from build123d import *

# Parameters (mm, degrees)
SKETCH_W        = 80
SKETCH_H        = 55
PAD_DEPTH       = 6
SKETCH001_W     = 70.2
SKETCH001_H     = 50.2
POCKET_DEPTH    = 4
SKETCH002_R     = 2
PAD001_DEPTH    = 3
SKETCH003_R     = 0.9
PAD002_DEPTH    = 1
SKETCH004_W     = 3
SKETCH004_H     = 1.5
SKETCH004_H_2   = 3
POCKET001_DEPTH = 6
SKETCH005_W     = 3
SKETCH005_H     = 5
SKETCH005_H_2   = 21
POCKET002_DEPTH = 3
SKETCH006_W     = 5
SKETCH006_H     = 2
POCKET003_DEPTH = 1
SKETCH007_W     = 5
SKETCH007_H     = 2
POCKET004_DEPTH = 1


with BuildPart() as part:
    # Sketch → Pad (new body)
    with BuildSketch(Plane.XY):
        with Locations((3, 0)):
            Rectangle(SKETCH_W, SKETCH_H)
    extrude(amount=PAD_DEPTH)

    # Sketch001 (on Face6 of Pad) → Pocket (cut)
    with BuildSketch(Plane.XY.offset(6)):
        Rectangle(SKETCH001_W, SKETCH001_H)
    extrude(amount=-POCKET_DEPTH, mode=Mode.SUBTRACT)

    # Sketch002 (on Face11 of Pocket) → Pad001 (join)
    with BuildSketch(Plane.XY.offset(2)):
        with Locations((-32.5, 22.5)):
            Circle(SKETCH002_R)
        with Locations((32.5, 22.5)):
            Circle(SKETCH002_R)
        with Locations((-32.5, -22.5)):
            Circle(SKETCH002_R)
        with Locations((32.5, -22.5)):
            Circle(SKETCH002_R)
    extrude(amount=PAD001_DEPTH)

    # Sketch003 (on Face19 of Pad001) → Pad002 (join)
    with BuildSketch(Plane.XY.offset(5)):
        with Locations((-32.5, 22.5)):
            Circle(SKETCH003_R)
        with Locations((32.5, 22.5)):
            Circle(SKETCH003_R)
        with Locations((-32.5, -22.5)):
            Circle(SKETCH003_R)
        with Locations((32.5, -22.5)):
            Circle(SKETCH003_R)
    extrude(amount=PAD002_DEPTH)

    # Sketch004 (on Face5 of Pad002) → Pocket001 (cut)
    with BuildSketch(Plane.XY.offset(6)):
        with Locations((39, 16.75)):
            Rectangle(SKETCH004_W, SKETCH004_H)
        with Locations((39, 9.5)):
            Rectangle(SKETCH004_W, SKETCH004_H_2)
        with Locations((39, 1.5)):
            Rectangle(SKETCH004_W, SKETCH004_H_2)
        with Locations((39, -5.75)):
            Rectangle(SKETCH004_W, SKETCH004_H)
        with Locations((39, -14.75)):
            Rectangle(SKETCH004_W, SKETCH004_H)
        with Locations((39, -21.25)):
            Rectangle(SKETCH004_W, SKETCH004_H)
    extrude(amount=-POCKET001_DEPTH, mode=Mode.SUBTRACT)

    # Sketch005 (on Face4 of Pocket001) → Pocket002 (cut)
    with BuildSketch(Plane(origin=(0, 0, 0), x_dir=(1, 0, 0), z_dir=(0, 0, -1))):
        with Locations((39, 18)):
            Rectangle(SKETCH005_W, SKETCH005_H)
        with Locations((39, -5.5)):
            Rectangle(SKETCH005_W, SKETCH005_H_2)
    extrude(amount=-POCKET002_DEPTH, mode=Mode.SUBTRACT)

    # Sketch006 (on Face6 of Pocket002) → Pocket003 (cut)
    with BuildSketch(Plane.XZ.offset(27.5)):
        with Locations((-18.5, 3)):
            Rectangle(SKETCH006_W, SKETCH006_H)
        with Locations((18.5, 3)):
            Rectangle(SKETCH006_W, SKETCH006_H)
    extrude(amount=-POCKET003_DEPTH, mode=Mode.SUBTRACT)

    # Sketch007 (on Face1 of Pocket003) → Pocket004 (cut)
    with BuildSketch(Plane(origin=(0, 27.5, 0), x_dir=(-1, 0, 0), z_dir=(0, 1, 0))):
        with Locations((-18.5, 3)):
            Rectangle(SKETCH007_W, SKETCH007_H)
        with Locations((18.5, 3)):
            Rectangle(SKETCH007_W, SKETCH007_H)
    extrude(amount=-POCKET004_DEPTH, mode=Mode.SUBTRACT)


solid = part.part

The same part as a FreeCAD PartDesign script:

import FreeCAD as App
import Part
import Sketcher

V = App.Vector

doc = App.newDocument("Part")
body = doc.addObject("PartDesign::Body", "Body")

# Sketch on XY plane
sketch1 = doc.addObject("Sketcher::SketchObject", "Sketch")
body.addObject(sketch1)
sketch1.AttachmentSupport = (doc.XY_Plane, [""])
sketch1.MapMode = "FlatFace"
sketch1.addGeometry(Part.LineSegment(V(-37, 27.5, 0), V(-37, -27.5, 0)), False)
sketch1.addGeometry(Part.LineSegment(V(-37, -27.5, 0), V(43, -27.5, 0)), False)
sketch1.addGeometry(Part.LineSegment(V(43, -27.5, 0), V(43, 27.5, 0)), False)
sketch1.addGeometry(Part.LineSegment(V(43, 27.5, 0), V(-37, 27.5, 0)), False)
sketch1.addConstraint(Sketcher.Constraint("Coincident", 0, 2, 1, 1))
sketch1.addConstraint(Sketcher.Constraint("Coincident", 1, 2, 2, 1))
sketch1.addConstraint(Sketcher.Constraint("Coincident", 2, 2, 3, 1))
sketch1.addConstraint(Sketcher.Constraint("Coincident", 3, 2, 0, 1))
sketch1.addConstraint(Sketcher.Constraint("Vertical", 0))
sketch1.addConstraint(Sketcher.Constraint("Horizontal", 1))
sketch1.addConstraint(Sketcher.Constraint("Vertical", 2))
sketch1.addConstraint(Sketcher.Constraint("Horizontal", 3))
sketch1.addConstraint(Sketcher.Constraint("DistanceX", 1, 1, 1, 2, 80.0))
sketch1.addConstraint(Sketcher.Constraint("DistanceY", 0, 2, 0, 1, 55.0))
sketch1.addConstraint(Sketcher.Constraint("DistanceX", 0, 2, -1, 1, 37.0))
sketch1.addConstraint(Sketcher.Constraint("DistanceY", 0, 2, -1, 1, 27.5))
pad1 = doc.addObject("PartDesign::Pad", "Pad")
body.addObject(pad1)
pad1.Profile = sketch1
pad1.Length = 6

# Sketch on XY plane
sketch2 = doc.addObject("Sketcher::SketchObject", "Sketch001")
body.addObject(sketch2)
sketch2.AttachmentSupport = (doc.XY_Plane, [""])
sketch2.MapMode = "FlatFace"
sketch2.AttachmentOffset = App.Placement(V(0, 0, 6), App.Rotation())
sketch2.addGeometry(Part.LineSegment(V(-35.1, 25.1, 0), V(-35.1, -25.1, 0)), False)
sketch2.addGeometry(Part.LineSegment(V(-35.1, -25.1, 0), V(35.1, -25.1, 0)), False)
sketch2.addGeometry(Part.LineSegment(V(35.1, -25.1, 0), V(35.1, 25.1, 0)), False)
sketch2.addGeometry(Part.LineSegment(V(35.1, 25.1, 0), V(-35.1, 25.1, 0)), False)
sketch2.addConstraint(Sketcher.Constraint("Coincident", 0, 2, 1, 1))
sketch2.addConstraint(Sketcher.Constraint("Coincident", 1, 2, 2, 1))
sketch2.addConstraint(Sketcher.Constraint("Coincident", 2, 2, 3, 1))
sketch2.addConstraint(Sketcher.Constraint("Coincident", 3, 2, 0, 1))
sketch2.addConstraint(Sketcher.Constraint("Vertical", 0))
sketch2.addConstraint(Sketcher.Constraint("Horizontal", 1))
sketch2.addConstraint(Sketcher.Constraint("Vertical", 2))
sketch2.addConstraint(Sketcher.Constraint("Horizontal", 3))
sketch2.addConstraint(Sketcher.Constraint("Symmetric", 0, 2, 2, 2, -1, 1))
sketch2.addConstraint(Sketcher.Constraint("DistanceX", 1, 1, 1, 2, 70.2))
sketch2.addConstraint(Sketcher.Constraint("DistanceY", 0, 2, 0, 1, 50.2))
pocket1 = doc.addObject("PartDesign::Pocket", "Pocket")
body.addObject(pocket1)
pocket1.Profile = sketch2
pocket1.Length = 4

# Sketch on XY plane
sketch3 = doc.addObject("Sketcher::SketchObject", "Sketch002")
body.addObject(sketch3)
sketch3.AttachmentSupport = (doc.XY_Plane, [""])
sketch3.MapMode = "FlatFace"
sketch3.AttachmentOffset = App.Placement(V(0, 0, 2), App.Rotation())
sketch3.addGeometry(Part.Circle(V(-32.5, 22.5, 0), V(0, 0, 1), 2), False)
sketch3.addGeometry(Part.Circle(V(32.5, 22.5, 0), V(0, 0, 1), 2), False)
sketch3.addGeometry(Part.Circle(V(-32.5, -22.5, 0), V(0, 0, 1), 2), False)
sketch3.addGeometry(Part.Circle(V(32.5, -22.5, 0), V(0, 0, 1), 2), False)
sketch3.addConstraint(Sketcher.Constraint("Equal", 0, 1))
sketch3.addConstraint(Sketcher.Constraint("Equal", 1, 2))
sketch3.addConstraint(Sketcher.Constraint("Equal", 2, 3))
sketch3.addConstraint(Sketcher.Constraint("Symmetric", 1, 3, 2, 3, -1, 1))
sketch3.addConstraint(Sketcher.Constraint("Symmetric", 0, 3, 3, 3, -1, 1))
sketch3.addConstraint(Sketcher.Constraint("Symmetric", 0, 3, 1, 3, -2))
sketch3.addConstraint(Sketcher.Constraint("Diameter", 0, 4.0))
sketch3.addConstraint(Sketcher.Constraint("DistanceX", 0, 3, 1, 3, 65.0))
sketch3.addConstraint(Sketcher.Constraint("DistanceY", 2, 3, 0, 3, 45.0))
pad2 = doc.addObject("PartDesign::Pad", "Pad001")
body.addObject(pad2)
pad2.Profile = sketch3
pad2.Length = 3

# Sketch on XY plane
sketch4 = doc.addObject("Sketcher::SketchObject", "Sketch003")
body.addObject(sketch4)
sketch4.AttachmentSupport = (doc.XY_Plane, [""])
sketch4.MapMode = "FlatFace"
sketch4.AttachmentOffset = App.Placement(V(0, 0, 5), App.Rotation())
sketch4.addGeometry(Part.Circle(V(-32.5, 22.5, 0), V(0, 0, 1), 0.9), False)
sketch4.addGeometry(Part.Circle(V(32.5, 22.5, 0), V(0, 0, 1), 0.9), False)
sketch4.addGeometry(Part.Circle(V(-32.5, -22.5, 0), V(0, 0, 1), 0.9), False)
sketch4.addGeometry(Part.Circle(V(32.5, -22.5, 0), V(0, 0, 1), 0.9), False)
sketch4.addConstraint(Sketcher.Constraint("Equal", 0, 1))
sketch4.addConstraint(Sketcher.Constraint("Equal", 1, 2))
sketch4.addConstraint(Sketcher.Constraint("Equal", 2, 3))
sketch4.addConstraint(Sketcher.Constraint("Symmetric", 1, 3, 2, 3, -1, 1))
sketch4.addConstraint(Sketcher.Constraint("Symmetric", 0, 3, 3, 3, -1, 1))
sketch4.addConstraint(Sketcher.Constraint("Symmetric", 0, 3, 1, 3, -2))
sketch4.addConstraint(Sketcher.Constraint("Diameter", 0, 1.8))
sketch4.addConstraint(Sketcher.Constraint("DistanceX", 0, 3, 1, 3, 65.0))
sketch4.addConstraint(Sketcher.Constraint("DistanceY", 2, 3, 0, 3, 45.0))
pad3 = doc.addObject("PartDesign::Pad", "Pad002")
body.addObject(pad3)
pad3.Profile = sketch4
pad3.Length = 1

# Sketch on XY plane
sketch5 = doc.addObject("Sketcher::SketchObject", "Sketch004")
body.addObject(sketch5)
sketch5.AttachmentSupport = (doc.XY_Plane, [""])
sketch5.MapMode = "FlatFace"
sketch5.AttachmentOffset = App.Placement(V(0, 0, 6), App.Rotation())
sketch5.addGeometry(Part.LineSegment(V(37.5, 17.5, 0), V(37.5, 16, 0)), False)
sketch5.addGeometry(Part.LineSegment(V(37.5, 16, 0), V(40.5, 16, 0)), False)
sketch5.addGeometry(Part.LineSegment(V(40.5, 16, 0), V(40.5, 17.5, 0)), False)
sketch5.addGeometry(Part.LineSegment(V(40.5, 17.5, 0), V(37.5, 17.5, 0)), False)
sketch5.addGeometry(Part.LineSegment(V(37.5, 11, 0), V(37.5, 8, 0)), False)
sketch5.addGeometry(Part.LineSegment(V(37.5, 8, 0), V(40.5, 8, 0)), False)
sketch5.addGeometry(Part.LineSegment(V(40.5, 8, 0), V(40.5, 11, 0)), False)
sketch5.addGeometry(Part.LineSegment(V(40.5, 11, 0), V(37.5, 11, 0)), False)
sketch5.addGeometry(Part.LineSegment(V(37.5, 3, 0), V(37.5, 0, 0)), False)
sketch5.addGeometry(Part.LineSegment(V(37.5, 0, 0), V(40.5, 0, 0)), False)
sketch5.addGeometry(Part.LineSegment(V(40.5, 0, 0), V(40.5, 3, 0)), False)
sketch5.addGeometry(Part.LineSegment(V(40.5, 3, 0), V(37.5, 3, 0)), False)
sketch5.addGeometry(Part.LineSegment(V(37.5, -5, 0), V(37.5, -6.5, 0)), False)
sketch5.addGeometry(Part.LineSegment(V(37.5, -6.5, 0), V(40.5, -6.5, 0)), False)
sketch5.addGeometry(Part.LineSegment(V(40.5, -6.5, 0), V(40.5, -5, 0)), False)
sketch5.addGeometry(Part.LineSegment(V(40.5, -5, 0), V(37.5, -5, 0)), False)
sketch5.addGeometry(Part.LineSegment(V(37.5, -14, 0), V(37.5, -15.5, 0)), False)
sketch5.addGeometry(Part.LineSegment(V(37.5, -15.5, 0), V(40.5, -15.5, 0)), False)
sketch5.addGeometry(Part.LineSegment(V(40.5, -15.5, 0), V(40.5, -14, 0)), False)
sketch5.addGeometry(Part.LineSegment(V(40.5, -14, 0), V(37.5, -14, 0)), False)
sketch5.addGeometry(Part.LineSegment(V(37.5, -20.5, 0), V(37.5, -22, 0)), False)
sketch5.addGeometry(Part.LineSegment(V(37.5, -22, 0), V(40.5, -22, 0)), False)
sketch5.addGeometry(Part.LineSegment(V(40.5, -22, 0), V(40.5, -20.5, 0)), False)
sketch5.addGeometry(Part.LineSegment(V(40.5, -20.5, 0), V(37.5, -20.5, 0)), False)
sketch5.addConstraint(Sketcher.Constraint("Coincident", 0, 2, 1, 1))
sketch5.addConstraint(Sketcher.Constraint("Coincident", 1, 2, 2, 1))
sketch5.addConstraint(Sketcher.Constraint("Coincident", 2, 2, 3, 1))
sketch5.addConstraint(Sketcher.Constraint("Coincident", 3, 2, 0, 1))
sketch5.addConstraint(Sketcher.Constraint("Coincident", 4, 2, 5, 1))
sketch5.addConstraint(Sketcher.Constraint("Coincident", 5, 2, 6, 1))
sketch5.addConstraint(Sketcher.Constraint("Coincident", 6, 2, 7, 1))
sketch5.addConstraint(Sketcher.Constraint("Coincident", 7, 2, 4, 1))
sketch5.addConstraint(Sketcher.Constraint("Coincident", 8, 2, 9, 1))
sketch5.addConstraint(Sketcher.Constraint("Coincident", 9, 2, 10, 1))
sketch5.addConstraint(Sketcher.Constraint("Coincident", 10, 2, 11, 1))
sketch5.addConstraint(Sketcher.Constraint("Coincident", 11, 2, 8, 1))
sketch5.addConstraint(Sketcher.Constraint("Coincident", 12, 2, 13, 1))
sketch5.addConstraint(Sketcher.Constraint("Coincident", 13, 2, 14, 1))
sketch5.addConstraint(Sketcher.Constraint("Coincident", 14, 2, 15, 1))
sketch5.addConstraint(Sketcher.Constraint("Coincident", 15, 2, 12, 1))
sketch5.addConstraint(Sketcher.Constraint("Coincident", 16, 2, 17, 1))
sketch5.addConstraint(Sketcher.Constraint("Coincident", 17, 2, 18, 1))
sketch5.addConstraint(Sketcher.Constraint("Coincident", 18, 2, 19, 1))
sketch5.addConstraint(Sketcher.Constraint("Coincident", 19, 2, 16, 1))
sketch5.addConstraint(Sketcher.Constraint("Coincident", 20, 2, 21, 1))
sketch5.addConstraint(Sketcher.Constraint("Coincident", 21, 2, 22, 1))
sketch5.addConstraint(Sketcher.Constraint("Coincident", 22, 2, 23, 1))
sketch5.addConstraint(Sketcher.Constraint("Coincident", 23, 2, 20, 1))
sketch5.addConstraint(Sketcher.Constraint("Vertical", 0))
sketch5.addConstraint(Sketcher.Constraint("Horizontal", 1))
sketch5.addConstraint(Sketcher.Constraint("Vertical", 2))
sketch5.addConstraint(Sketcher.Constraint("Horizontal", 3))
sketch5.addConstraint(Sketcher.Constraint("Vertical", 4))
sketch5.addConstraint(Sketcher.Constraint("Horizontal", 5))
sketch5.addConstraint(Sketcher.Constraint("Vertical", 6))
sketch5.addConstraint(Sketcher.Constraint("Horizontal", 7))
sketch5.addConstraint(Sketcher.Constraint("Vertical", 8))
sketch5.addConstraint(Sketcher.Constraint("Horizontal", 9))
sketch5.addConstraint(Sketcher.Constraint("Vertical", 10))
sketch5.addConstraint(Sketcher.Constraint("Horizontal", 11))
sketch5.addConstraint(Sketcher.Constraint("Vertical", 12))
sketch5.addConstraint(Sketcher.Constraint("Horizontal", 13))
sketch5.addConstraint(Sketcher.Constraint("Vertical", 14))
sketch5.addConstraint(Sketcher.Constraint("Horizontal", 15))
sketch5.addConstraint(Sketcher.Constraint("Vertical", 16))
sketch5.addConstraint(Sketcher.Constraint("Horizontal", 17))
sketch5.addConstraint(Sketcher.Constraint("Vertical", 18))
sketch5.addConstraint(Sketcher.Constraint("Horizontal", 19))
sketch5.addConstraint(Sketcher.Constraint("Vertical", 20))
sketch5.addConstraint(Sketcher.Constraint("Horizontal", 21))
sketch5.addConstraint(Sketcher.Constraint("Vertical", 22))
sketch5.addConstraint(Sketcher.Constraint("Horizontal", 23))
sketch5.addConstraint(Sketcher.Constraint("PointOnObject", 8, 2, -1))
sketch5.addConstraint(Sketcher.Constraint("Vertical", 3, 2, 4, 2))
sketch5.addConstraint(Sketcher.Constraint("Vertical", 2, 2, 5, 2))
sketch5.addConstraint(Sketcher.Constraint("Vertical", 7, 2, 8, 2))
sketch5.addConstraint(Sketcher.Constraint("Vertical", 6, 2, 9, 2))
sketch5.addConstraint(Sketcher.Constraint("Vertical", 11, 2, 12, 2))
sketch5.addConstraint(Sketcher.Constraint("Vertical", 10, 2, 13, 2))
sketch5.addConstraint(Sketcher.Constraint("Vertical", 15, 2, 16, 2))
sketch5.addConstraint(Sketcher.Constraint("Vertical", 14, 2, 17, 2))
sketch5.addConstraint(Sketcher.Constraint("Vertical", 19, 2, 20, 2))
sketch5.addConstraint(Sketcher.Constraint("Vertical", 18, 2, 21, 2))
sketch5.addConstraint(Sketcher.Constraint("Equal", 23, 4))
sketch5.addConstraint(Sketcher.Constraint("Equal", 6, 8))
sketch5.addConstraint(Sketcher.Constraint("Equal", 2, 12))
sketch5.addConstraint(Sketcher.Constraint("Equal", 14, 16))
sketch5.addConstraint(Sketcher.Constraint("Equal", 18, 20))
sketch5.addConstraint(Sketcher.Constraint("DistanceX", 1, 1, 1, 2, 3.0))
sketch5.addConstraint(Sketcher.Constraint("DistanceY", 0, 2, 0, 1, 1.5))
sketch5.addConstraint(Sketcher.Constraint("DistanceY", -1, 1, 0, 2, 16.0))
sketch5.addConstraint(Sketcher.Constraint("DistanceY", -1, 1, 4, 2, 8.0))
sketch5.addConstraint(Sketcher.Constraint("DistanceY", 14, 2, -1, 1, 5.0))
sketch5.addConstraint(Sketcher.Constraint("DistanceY", 18, 2, -1, 1, 14.0))
sketch5.addConstraint(Sketcher.Constraint("DistanceY", 20, 2, -1, 1, 22.0))
sketch5.addConstraint(Sketcher.Constraint("DistanceX", -1, 1, 0, 2, 37.5))
pocket2 = doc.addObject("PartDesign::Pocket", "Pocket001")
body.addObject(pocket2)
pocket2.Profile = sketch5
pocket2.Length = 6

# Sketch on XY plane
sketch6 = doc.addObject("Sketcher::SketchObject", "Sketch005")
body.addObject(sketch6)
sketch6.AttachmentSupport = (doc.XY_Plane, [""])
sketch6.MapMode = "FlatFace"
sketch6.addGeometry(Part.LineSegment(V(37.5, -20.5, 0), V(37.5, -15.5, 0)), False)
sketch6.addGeometry(Part.LineSegment(V(37.5, -15.5, 0), V(40.5, -15.5, 0)), False)
sketch6.addGeometry(Part.LineSegment(V(40.5, -15.5, 0), V(40.5, -20.5, 0)), False)
sketch6.addGeometry(Part.LineSegment(V(40.5, -20.5, 0), V(37.5, -20.5, 0)), False)
sketch6.addGeometry(Part.LineSegment(V(37.5, -5, 0), V(37.5, 16, 0)), False)
sketch6.addGeometry(Part.LineSegment(V(37.5, 16, 0), V(40.5, 16, 0)), False)
sketch6.addGeometry(Part.LineSegment(V(40.5, 16, 0), V(40.5, -5, 0)), False)
sketch6.addGeometry(Part.LineSegment(V(40.5, -5, 0), V(37.5, -5, 0)), False)
sketch6.addConstraint(Sketcher.Constraint("Coincident", 0, 2, 1, 1))
sketch6.addConstraint(Sketcher.Constraint("Coincident", 1, 2, 2, 1))
sketch6.addConstraint(Sketcher.Constraint("Coincident", 2, 2, 3, 1))
sketch6.addConstraint(Sketcher.Constraint("Coincident", 3, 2, 0, 1))
sketch6.addConstraint(Sketcher.Constraint("Coincident", 4, 2, 5, 1))
sketch6.addConstraint(Sketcher.Constraint("Coincident", 5, 2, 6, 1))
sketch6.addConstraint(Sketcher.Constraint("Coincident", 6, 2, 7, 1))
sketch6.addConstraint(Sketcher.Constraint("Coincident", 7, 2, 4, 1))
sketch6.addConstraint(Sketcher.Constraint("Vertical", 0))
sketch6.addConstraint(Sketcher.Constraint("Horizontal", 1))
sketch6.addConstraint(Sketcher.Constraint("Vertical", 2))
sketch6.addConstraint(Sketcher.Constraint("Horizontal", 3))
sketch6.addConstraint(Sketcher.Constraint("Vertical", 4))
sketch6.addConstraint(Sketcher.Constraint("Horizontal", 5))
sketch6.addConstraint(Sketcher.Constraint("Vertical", 6))
sketch6.addConstraint(Sketcher.Constraint("Horizontal", 7))
sketch6.addConstraint(Sketcher.Constraint("Vertical", 3, 2, 4, 2))
sketch6.addConstraint(Sketcher.Constraint("Vertical", 2, 2, 5, 2))
sketch6.addConstraint(Sketcher.Constraint("DistanceX", 1, 1, 1, 2, 3.0))
sketch6.addConstraint(Sketcher.Constraint("DistanceY", 0, 1, 0, 2, 5.0))
sketch6.addConstraint(Sketcher.Constraint("DistanceY", 4, 1, 4, 2, 21.0))
sketch6.addConstraint(Sketcher.Constraint("DistanceY", -1, 1, 4, 2, 16.0))
sketch6.addConstraint(Sketcher.Constraint("DistanceX", -1, 1, 0, 2, 37.5))
sketch6.addConstraint(Sketcher.Constraint("DistanceY", 0, 2, -1, 1, 15.5))
pocket3 = doc.addObject("PartDesign::Pocket", "Pocket002")
body.addObject(pocket3)
pocket3.Profile = sketch6
pocket3.Length = 3
pocket3.Reversed = True

# Sketch on XZ plane
sketch7 = doc.addObject("Sketcher::SketchObject", "Sketch006")
body.addObject(sketch7)
sketch7.AttachmentSupport = (doc.XZ_Plane, [""])
sketch7.MapMode = "FlatFace"
sketch7.AttachmentOffset = App.Placement(V(0, 0, 27.5), App.Rotation())
sketch7.addGeometry(Part.LineSegment(V(-21, 4, 0), V(-21, 2, 0)), False)
sketch7.addGeometry(Part.LineSegment(V(-21, 2, 0), V(-16, 2, 0)), False)
sketch7.addGeometry(Part.LineSegment(V(-16, 2, 0), V(-16, 4, 0)), False)
sketch7.addGeometry(Part.LineSegment(V(-16, 4, 0), V(-21, 4, 0)), False)
sketch7.addGeometry(Part.LineSegment(V(16, 4, 0), V(16, 2, 0)), False)
sketch7.addGeometry(Part.LineSegment(V(16, 2, 0), V(21, 2, 0)), False)
sketch7.addGeometry(Part.LineSegment(V(21, 2, 0), V(21, 4, 0)), False)
sketch7.addGeometry(Part.LineSegment(V(21, 4, 0), V(16, 4, 0)), False)
sketch7.addConstraint(Sketcher.Constraint("Coincident", 0, 2, 1, 1))
sketch7.addConstraint(Sketcher.Constraint("Coincident", 1, 2, 2, 1))
sketch7.addConstraint(Sketcher.Constraint("Coincident", 2, 2, 3, 1))
sketch7.addConstraint(Sketcher.Constraint("Coincident", 3, 2, 0, 1))
sketch7.addConstraint(Sketcher.Constraint("Coincident", 4, 2, 5, 1))
sketch7.addConstraint(Sketcher.Constraint("Coincident", 5, 2, 6, 1))
sketch7.addConstraint(Sketcher.Constraint("Coincident", 6, 2, 7, 1))
sketch7.addConstraint(Sketcher.Constraint("Coincident", 7, 2, 4, 1))
sketch7.addConstraint(Sketcher.Constraint("Vertical", 0))
sketch7.addConstraint(Sketcher.Constraint("Horizontal", 1))
sketch7.addConstraint(Sketcher.Constraint("Vertical", 2))
sketch7.addConstraint(Sketcher.Constraint("Horizontal", 3))
sketch7.addConstraint(Sketcher.Constraint("Vertical", 4))
sketch7.addConstraint(Sketcher.Constraint("Horizontal", 5))
sketch7.addConstraint(Sketcher.Constraint("Vertical", 6))
sketch7.addConstraint(Sketcher.Constraint("Horizontal", 7))
sketch7.addConstraint(Sketcher.Constraint("Symmetric", 1, 2, 4, 2, -2))
sketch7.addConstraint(Sketcher.Constraint("Symmetric", 3, 2, 6, 2, -2))
sketch7.addConstraint(Sketcher.Constraint("DistanceX", 1, 1, 1, 2, 5.0))
sketch7.addConstraint(Sketcher.Constraint("DistanceY", 0, 2, 0, 1, 2.0))
sketch7.addConstraint(Sketcher.Constraint("DistanceX", 0, 2, -1, 1, 21.0))
sketch7.addConstraint(Sketcher.Constraint("DistanceY", -1, 1, 0, 2, 2.0))
pocket4 = doc.addObject("PartDesign::Pocket", "Pocket003")
body.addObject(pocket4)
pocket4.Profile = sketch7
pocket4.Length = 1

# Sketch on XZ plane
sketch8 = doc.addObject("Sketcher::SketchObject", "Sketch007")
body.addObject(sketch8)
sketch8.AttachmentSupport = (doc.XZ_Plane, [""])
sketch8.MapMode = "FlatFace"
sketch8.AttachmentOffset = App.Placement(V(0, 0, -27.5), App.Rotation())
sketch8.addGeometry(Part.LineSegment(V(21, 4, 0), V(21, 2, 0)), False)
sketch8.addGeometry(Part.LineSegment(V(21, 2, 0), V(16, 2, 0)), False)
sketch8.addGeometry(Part.LineSegment(V(16, 2, 0), V(16, 4, 0)), False)
sketch8.addGeometry(Part.LineSegment(V(16, 4, 0), V(21, 4, 0)), False)
sketch8.addGeometry(Part.LineSegment(V(-16, 4, 0), V(-16, 2, 0)), False)
sketch8.addGeometry(Part.LineSegment(V(-16, 2, 0), V(-21, 2, 0)), False)
sketch8.addGeometry(Part.LineSegment(V(-21, 2, 0), V(-21, 4, 0)), False)
sketch8.addGeometry(Part.LineSegment(V(-21, 4, 0), V(-16, 4, 0)), False)
sketch8.addConstraint(Sketcher.Constraint("Coincident", 0, 2, 1, 1))
sketch8.addConstraint(Sketcher.Constraint("Coincident", 1, 2, 2, 1))
sketch8.addConstraint(Sketcher.Constraint("Coincident", 2, 2, 3, 1))
sketch8.addConstraint(Sketcher.Constraint("Coincident", 3, 2, 0, 1))
sketch8.addConstraint(Sketcher.Constraint("Coincident", 4, 2, 5, 1))
sketch8.addConstraint(Sketcher.Constraint("Coincident", 5, 2, 6, 1))
sketch8.addConstraint(Sketcher.Constraint("Coincident", 6, 2, 7, 1))
sketch8.addConstraint(Sketcher.Constraint("Coincident", 7, 2, 4, 1))
sketch8.addConstraint(Sketcher.Constraint("Vertical", 0))
sketch8.addConstraint(Sketcher.Constraint("Horizontal", 1))
sketch8.addConstraint(Sketcher.Constraint("Vertical", 2))
sketch8.addConstraint(Sketcher.Constraint("Horizontal", 3))
sketch8.addConstraint(Sketcher.Constraint("Vertical", 4))
sketch8.addConstraint(Sketcher.Constraint("Horizontal", 5))
sketch8.addConstraint(Sketcher.Constraint("Vertical", 6))
sketch8.addConstraint(Sketcher.Constraint("Horizontal", 7))
sketch8.addConstraint(Sketcher.Constraint("Symmetric", 1, 2, 4, 2, -2))
sketch8.addConstraint(Sketcher.Constraint("Symmetric", 3, 2, 6, 2, -2))
sketch8.addConstraint(Sketcher.Constraint("DistanceX", 1, 2, 1, 1, 5.0))
sketch8.addConstraint(Sketcher.Constraint("DistanceY", 0, 2, 0, 1, 2.0))
sketch8.addConstraint(Sketcher.Constraint("DistanceX", -1, 1, 0, 2, 21.0))
sketch8.addConstraint(Sketcher.Constraint("DistanceY", -1, 1, 0, 2, 2.0))
pocket5 = doc.addObject("PartDesign::Pocket", "Pocket004")
body.addObject(pocket5)
pocket5.Profile = sketch8
pocket5.Length = 1
pocket5.Reversed = True

doc.recompute()
